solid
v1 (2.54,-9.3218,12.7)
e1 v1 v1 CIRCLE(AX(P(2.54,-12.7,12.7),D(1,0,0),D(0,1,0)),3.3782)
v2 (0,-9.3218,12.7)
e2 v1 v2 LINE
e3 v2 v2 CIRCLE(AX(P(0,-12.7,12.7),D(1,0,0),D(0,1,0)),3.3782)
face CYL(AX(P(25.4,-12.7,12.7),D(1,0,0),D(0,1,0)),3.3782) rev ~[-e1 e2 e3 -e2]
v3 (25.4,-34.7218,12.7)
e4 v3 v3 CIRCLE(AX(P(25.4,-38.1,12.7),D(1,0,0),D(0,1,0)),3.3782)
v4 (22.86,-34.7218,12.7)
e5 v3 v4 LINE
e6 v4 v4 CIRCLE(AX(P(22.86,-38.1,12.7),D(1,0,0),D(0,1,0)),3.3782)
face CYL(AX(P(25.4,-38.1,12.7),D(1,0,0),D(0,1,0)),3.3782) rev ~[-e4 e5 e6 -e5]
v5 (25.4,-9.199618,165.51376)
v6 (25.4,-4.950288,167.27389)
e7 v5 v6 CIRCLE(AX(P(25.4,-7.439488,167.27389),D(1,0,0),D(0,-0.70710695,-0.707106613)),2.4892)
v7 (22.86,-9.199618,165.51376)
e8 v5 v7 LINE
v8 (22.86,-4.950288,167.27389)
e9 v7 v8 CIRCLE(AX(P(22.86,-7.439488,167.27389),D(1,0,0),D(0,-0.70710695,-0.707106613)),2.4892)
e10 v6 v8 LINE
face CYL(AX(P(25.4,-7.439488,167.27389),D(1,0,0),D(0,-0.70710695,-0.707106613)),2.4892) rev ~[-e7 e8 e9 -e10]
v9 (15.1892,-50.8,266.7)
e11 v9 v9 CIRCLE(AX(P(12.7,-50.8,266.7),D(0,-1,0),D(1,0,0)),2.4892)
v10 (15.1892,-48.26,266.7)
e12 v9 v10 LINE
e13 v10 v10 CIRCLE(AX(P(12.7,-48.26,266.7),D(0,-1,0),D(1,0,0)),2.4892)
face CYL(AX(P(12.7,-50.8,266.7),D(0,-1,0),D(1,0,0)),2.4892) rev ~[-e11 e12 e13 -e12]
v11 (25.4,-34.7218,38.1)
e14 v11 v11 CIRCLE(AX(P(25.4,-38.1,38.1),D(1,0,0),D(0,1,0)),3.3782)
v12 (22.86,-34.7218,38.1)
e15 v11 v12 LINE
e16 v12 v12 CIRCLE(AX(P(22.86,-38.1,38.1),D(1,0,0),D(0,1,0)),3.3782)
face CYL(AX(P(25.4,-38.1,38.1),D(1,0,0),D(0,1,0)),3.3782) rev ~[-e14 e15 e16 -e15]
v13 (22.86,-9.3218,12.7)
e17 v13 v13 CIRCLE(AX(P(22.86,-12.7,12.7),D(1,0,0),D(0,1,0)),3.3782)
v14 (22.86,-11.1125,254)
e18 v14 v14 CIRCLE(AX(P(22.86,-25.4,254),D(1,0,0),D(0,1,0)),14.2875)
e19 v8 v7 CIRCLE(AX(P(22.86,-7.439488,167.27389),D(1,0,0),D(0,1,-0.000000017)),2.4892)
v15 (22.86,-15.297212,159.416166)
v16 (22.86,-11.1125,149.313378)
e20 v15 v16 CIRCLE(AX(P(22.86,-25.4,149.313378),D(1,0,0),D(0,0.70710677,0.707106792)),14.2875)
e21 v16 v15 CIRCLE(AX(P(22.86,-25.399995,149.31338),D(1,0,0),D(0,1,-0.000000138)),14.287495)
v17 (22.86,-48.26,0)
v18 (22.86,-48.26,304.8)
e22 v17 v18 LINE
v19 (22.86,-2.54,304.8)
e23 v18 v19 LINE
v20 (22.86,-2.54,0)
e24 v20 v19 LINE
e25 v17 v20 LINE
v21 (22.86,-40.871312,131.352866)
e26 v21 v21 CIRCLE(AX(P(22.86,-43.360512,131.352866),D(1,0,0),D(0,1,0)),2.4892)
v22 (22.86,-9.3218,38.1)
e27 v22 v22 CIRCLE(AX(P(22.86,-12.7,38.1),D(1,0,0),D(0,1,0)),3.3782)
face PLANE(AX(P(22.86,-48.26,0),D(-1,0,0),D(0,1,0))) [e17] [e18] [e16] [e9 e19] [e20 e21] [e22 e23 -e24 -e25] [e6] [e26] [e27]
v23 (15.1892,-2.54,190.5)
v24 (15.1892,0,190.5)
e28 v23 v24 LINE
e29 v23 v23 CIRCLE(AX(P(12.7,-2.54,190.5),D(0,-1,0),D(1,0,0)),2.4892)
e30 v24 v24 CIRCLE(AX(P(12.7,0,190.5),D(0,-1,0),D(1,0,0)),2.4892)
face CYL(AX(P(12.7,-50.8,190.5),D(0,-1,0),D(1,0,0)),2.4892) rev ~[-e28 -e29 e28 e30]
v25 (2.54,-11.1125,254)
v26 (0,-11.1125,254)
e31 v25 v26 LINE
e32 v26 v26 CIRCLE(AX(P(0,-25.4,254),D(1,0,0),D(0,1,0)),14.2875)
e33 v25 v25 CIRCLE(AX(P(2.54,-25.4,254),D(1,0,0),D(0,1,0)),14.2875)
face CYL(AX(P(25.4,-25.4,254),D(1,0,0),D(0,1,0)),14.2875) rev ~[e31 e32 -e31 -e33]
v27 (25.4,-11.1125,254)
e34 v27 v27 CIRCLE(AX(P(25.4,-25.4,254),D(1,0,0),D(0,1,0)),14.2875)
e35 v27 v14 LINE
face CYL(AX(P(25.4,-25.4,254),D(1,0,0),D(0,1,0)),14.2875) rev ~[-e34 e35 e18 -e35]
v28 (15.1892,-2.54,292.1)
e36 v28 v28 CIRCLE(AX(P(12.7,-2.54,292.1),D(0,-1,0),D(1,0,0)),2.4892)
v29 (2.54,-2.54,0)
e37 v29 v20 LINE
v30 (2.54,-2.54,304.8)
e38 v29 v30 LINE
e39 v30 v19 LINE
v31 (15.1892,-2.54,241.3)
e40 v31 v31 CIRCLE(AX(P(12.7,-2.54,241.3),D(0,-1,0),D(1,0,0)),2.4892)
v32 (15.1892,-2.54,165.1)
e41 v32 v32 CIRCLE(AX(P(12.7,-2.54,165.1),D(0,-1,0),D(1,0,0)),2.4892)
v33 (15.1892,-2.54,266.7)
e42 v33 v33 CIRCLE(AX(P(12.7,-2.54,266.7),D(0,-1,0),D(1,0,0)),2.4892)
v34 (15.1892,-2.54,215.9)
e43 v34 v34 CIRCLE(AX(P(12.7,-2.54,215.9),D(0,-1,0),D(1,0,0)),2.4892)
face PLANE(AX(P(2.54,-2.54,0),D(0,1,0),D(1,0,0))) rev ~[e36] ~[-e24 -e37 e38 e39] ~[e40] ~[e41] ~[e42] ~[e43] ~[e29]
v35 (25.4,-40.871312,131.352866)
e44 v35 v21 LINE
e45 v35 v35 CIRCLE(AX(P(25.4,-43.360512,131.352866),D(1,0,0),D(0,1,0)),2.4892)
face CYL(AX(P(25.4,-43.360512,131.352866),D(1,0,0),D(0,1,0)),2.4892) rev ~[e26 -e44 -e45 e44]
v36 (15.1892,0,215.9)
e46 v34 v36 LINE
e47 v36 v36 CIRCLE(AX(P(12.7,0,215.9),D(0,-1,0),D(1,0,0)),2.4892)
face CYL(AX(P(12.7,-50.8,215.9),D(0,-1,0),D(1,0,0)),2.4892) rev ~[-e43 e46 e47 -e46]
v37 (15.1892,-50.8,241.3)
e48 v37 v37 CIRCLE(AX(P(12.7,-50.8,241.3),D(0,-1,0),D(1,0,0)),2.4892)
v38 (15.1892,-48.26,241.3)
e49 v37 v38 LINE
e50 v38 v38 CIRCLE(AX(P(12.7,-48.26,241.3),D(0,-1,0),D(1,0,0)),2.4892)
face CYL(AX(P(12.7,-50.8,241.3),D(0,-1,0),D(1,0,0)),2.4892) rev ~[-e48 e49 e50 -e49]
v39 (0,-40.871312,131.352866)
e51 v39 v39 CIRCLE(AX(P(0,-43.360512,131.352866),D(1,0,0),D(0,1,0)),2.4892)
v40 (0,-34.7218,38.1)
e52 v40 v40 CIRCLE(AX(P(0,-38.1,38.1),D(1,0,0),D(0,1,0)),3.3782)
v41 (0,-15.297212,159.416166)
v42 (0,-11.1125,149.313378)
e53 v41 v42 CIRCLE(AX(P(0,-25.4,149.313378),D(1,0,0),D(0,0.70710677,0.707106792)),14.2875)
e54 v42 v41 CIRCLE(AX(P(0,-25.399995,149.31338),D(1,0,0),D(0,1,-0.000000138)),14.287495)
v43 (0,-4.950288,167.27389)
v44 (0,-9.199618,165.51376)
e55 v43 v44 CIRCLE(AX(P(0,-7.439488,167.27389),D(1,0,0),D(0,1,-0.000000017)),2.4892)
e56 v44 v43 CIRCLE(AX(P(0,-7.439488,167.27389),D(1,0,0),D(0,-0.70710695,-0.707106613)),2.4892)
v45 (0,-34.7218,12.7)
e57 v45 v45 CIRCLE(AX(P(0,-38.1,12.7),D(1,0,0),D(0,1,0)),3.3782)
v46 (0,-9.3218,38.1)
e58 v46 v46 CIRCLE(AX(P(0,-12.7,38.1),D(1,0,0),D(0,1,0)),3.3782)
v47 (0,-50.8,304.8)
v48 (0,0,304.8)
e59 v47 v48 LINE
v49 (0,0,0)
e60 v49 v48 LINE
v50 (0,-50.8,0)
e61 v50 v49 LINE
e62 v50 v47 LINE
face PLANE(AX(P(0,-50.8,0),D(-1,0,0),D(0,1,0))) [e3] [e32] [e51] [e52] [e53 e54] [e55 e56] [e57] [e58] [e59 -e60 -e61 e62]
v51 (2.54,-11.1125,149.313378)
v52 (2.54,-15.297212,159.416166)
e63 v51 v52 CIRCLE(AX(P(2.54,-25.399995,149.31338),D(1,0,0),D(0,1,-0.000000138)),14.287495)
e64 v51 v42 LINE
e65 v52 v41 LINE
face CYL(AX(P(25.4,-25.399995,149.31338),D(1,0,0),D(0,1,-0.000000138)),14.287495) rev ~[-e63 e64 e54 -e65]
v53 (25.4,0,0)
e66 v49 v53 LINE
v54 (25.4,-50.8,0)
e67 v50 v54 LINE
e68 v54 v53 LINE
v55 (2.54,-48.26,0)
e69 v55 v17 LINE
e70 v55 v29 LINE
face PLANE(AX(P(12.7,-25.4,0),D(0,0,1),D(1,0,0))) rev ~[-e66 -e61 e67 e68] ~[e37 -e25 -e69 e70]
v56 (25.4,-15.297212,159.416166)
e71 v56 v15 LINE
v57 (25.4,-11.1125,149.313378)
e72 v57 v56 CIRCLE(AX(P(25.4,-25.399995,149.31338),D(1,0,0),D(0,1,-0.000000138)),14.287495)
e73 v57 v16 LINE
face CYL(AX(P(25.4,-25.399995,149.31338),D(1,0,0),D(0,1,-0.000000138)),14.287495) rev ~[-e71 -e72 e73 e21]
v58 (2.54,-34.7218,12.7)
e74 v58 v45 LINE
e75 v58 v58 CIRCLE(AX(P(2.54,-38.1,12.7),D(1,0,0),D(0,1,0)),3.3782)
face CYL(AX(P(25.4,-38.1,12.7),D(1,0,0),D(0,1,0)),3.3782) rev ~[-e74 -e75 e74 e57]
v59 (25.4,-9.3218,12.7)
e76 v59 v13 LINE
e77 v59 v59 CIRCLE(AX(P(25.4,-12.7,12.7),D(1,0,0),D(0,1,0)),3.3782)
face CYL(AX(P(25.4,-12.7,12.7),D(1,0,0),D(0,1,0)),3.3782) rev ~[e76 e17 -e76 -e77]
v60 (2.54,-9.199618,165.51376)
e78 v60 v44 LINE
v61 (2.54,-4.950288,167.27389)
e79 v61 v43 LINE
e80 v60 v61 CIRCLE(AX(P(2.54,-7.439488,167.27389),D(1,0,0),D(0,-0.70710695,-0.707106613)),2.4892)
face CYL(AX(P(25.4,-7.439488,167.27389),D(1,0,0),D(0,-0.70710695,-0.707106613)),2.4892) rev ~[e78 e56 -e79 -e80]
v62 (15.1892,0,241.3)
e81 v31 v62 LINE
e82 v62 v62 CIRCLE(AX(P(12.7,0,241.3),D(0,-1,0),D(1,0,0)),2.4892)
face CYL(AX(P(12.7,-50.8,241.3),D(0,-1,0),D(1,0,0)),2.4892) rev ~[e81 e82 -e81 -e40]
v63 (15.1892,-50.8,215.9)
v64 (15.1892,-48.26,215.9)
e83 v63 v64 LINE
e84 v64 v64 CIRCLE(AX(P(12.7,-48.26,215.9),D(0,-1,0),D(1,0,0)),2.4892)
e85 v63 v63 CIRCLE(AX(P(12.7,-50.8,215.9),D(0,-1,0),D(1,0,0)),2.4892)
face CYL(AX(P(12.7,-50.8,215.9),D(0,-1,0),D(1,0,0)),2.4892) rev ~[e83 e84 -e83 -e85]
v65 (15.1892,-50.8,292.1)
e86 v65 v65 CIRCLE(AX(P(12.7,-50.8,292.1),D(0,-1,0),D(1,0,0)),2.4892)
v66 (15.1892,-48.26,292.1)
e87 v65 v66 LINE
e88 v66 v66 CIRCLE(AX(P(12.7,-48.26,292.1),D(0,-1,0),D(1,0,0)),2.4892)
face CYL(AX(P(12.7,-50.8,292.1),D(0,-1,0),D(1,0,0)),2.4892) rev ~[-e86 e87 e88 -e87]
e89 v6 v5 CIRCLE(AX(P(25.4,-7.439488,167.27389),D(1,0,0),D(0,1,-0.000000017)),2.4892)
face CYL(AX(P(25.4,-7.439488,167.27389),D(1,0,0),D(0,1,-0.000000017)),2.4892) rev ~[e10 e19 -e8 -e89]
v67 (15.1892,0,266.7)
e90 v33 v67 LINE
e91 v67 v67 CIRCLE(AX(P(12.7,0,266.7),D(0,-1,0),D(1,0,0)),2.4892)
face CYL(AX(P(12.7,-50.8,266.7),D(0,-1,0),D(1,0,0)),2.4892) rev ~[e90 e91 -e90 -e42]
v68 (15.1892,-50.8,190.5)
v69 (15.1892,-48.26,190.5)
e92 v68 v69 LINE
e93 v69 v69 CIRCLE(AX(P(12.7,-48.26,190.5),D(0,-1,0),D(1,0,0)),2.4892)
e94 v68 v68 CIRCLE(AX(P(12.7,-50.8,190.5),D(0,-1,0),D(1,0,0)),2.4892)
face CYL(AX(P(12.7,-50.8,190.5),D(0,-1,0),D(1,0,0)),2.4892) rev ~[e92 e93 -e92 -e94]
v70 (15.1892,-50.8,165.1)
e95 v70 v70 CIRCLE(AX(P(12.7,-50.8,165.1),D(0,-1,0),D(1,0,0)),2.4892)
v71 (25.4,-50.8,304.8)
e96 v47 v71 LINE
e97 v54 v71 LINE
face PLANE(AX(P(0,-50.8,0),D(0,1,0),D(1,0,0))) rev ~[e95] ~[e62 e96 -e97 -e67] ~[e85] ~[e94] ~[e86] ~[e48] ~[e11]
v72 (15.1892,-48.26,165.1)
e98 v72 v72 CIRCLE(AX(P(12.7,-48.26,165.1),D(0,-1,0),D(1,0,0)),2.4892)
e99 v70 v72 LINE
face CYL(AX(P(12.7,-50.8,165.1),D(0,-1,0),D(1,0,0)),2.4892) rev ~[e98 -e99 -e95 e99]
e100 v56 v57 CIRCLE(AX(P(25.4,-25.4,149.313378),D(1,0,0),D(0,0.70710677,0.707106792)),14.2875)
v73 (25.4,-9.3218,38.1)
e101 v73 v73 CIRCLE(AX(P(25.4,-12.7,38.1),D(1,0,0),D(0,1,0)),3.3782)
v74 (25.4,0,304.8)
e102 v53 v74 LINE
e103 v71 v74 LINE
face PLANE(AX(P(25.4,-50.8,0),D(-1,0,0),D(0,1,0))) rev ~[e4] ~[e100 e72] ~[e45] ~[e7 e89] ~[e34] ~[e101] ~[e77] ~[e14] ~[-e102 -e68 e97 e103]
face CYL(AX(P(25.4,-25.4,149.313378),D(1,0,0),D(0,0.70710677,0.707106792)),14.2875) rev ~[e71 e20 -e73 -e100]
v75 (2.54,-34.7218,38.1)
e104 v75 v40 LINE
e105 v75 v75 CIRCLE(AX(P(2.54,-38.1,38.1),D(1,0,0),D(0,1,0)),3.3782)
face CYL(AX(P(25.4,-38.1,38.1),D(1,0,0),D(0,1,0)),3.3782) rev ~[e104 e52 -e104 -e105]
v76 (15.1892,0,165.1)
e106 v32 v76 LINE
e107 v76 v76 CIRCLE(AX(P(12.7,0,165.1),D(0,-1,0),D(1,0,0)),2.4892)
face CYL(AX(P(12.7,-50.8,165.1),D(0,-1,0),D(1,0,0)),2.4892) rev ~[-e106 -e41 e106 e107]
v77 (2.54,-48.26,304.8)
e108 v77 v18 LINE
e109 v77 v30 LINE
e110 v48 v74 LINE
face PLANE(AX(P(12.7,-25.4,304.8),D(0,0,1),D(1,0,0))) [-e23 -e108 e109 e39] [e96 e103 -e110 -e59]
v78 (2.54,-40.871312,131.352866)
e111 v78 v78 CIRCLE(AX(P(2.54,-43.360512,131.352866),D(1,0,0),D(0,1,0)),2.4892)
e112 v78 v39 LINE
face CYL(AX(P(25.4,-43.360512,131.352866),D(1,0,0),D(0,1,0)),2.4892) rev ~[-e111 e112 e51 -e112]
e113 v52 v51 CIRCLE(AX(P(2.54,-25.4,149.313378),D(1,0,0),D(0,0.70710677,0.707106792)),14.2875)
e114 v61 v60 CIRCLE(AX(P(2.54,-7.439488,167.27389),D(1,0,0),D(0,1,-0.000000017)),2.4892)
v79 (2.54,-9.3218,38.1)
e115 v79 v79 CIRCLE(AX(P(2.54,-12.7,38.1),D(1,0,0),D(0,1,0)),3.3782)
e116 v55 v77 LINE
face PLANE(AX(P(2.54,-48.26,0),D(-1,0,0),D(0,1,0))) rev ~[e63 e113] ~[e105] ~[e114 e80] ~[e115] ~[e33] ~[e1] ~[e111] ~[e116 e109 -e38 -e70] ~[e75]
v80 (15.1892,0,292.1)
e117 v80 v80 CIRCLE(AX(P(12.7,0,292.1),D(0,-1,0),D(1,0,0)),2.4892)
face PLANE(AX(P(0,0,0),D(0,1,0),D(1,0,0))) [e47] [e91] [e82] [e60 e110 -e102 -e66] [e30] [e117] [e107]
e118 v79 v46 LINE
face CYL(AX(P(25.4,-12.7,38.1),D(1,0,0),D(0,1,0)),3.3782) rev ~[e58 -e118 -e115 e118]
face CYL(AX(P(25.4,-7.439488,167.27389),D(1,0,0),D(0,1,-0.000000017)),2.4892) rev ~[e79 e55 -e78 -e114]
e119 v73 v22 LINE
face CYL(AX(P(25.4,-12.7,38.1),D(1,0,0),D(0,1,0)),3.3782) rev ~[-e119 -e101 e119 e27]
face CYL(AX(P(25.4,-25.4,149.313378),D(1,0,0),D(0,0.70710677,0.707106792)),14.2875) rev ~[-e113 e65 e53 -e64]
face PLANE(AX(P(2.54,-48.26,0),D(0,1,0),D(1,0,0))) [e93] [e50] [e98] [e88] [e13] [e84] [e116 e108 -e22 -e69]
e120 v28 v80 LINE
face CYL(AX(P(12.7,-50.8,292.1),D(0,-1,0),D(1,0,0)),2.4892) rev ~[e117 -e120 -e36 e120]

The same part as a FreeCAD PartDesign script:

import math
import FreeCAD as App
import Part
import Sketcher

V = App.Vector
Q = App.Units.Quantity


def add_polygon(sketch, points):
    """Adds a closed chain of lines whose ends are joined by coincident constraints."""
    first, n = sketch.GeometryCount, len(points)
    for a, b in zip(points, points[1:] + points[:1]):
        sketch.addGeometry(Part.LineSegment(App.Vector(*a, 0), App.Vector(*b, 0)), False)
    for i in range(n):
        sketch.addConstraint(Sketcher.Constraint("Coincident", first + i, 2, first + (i + 1) % n, 1))

doc = App.newDocument("Part")
body = doc.addObject("PartDesign::Body", "Body")

# Sketch on XY plane
sketch1 = body.newObject("Sketcher::SketchObject", "Sketch")
sketch1.AttachmentSupport = (doc.getObject("XY_Plane"), [""])
sketch1.MapMode = "FlatFace"
add_polygon(sketch1, [(0, 0), (0, -50.8), (25.4, -50.8), (25.4, 0)])  # lines 0-3
add_polygon(sketch1, [(22.86, -48.26), (2.54, -48.26), (2.54, -2.54), (22.86, -2.54)])  # lines 4-7
sketch1.addConstraint([
    Sketcher.Constraint("Vertical", 0),
    Sketcher.Constraint("Horizontal", 1),
    Sketcher.Constraint("Vertical", 2),
    Sketcher.Constraint("Horizontal", 3),
    Sketcher.Constraint("Horizontal", 4),
    Sketcher.Constraint("Vertical", 5),
    Sketcher.Constraint("Horizontal", 6),
    Sketcher.Constraint("Vertical", 7),
    Sketcher.Constraint("Coincident", 3, 2, -1, 1),
    Sketcher.Constraint("DistanceX", 1, 1, 1, 2, Q("1 in")),
    Sketcher.Constraint("DistanceY", 0, 2, 0, 1, Q("2 in")),
    Sketcher.Constraint("DistanceX", 4, 2, 4, 1, Q("0.8 in")),
    Sketcher.Constraint("DistanceY", 5, 1, 5, 2, Q("1.8 in")),
    Sketcher.Constraint("DistanceX", -1, 1, 4, 2, Q("0.1 in")),
    Sketcher.Constraint("DistanceY", 4, 2, -1, 1, Q("1.9 in")),
])
pad1 = body.newObject("PartDesign::Pad", "Pad")
pad1.Profile = sketch1
pad1.Length = Q("12 in")

# Sketch on YZ plane
sketch2 = body.newObject("Sketcher::SketchObject", "Sketch001")
sketch2.AttachmentSupport = (doc.getObject("YZ_Plane"), [""])
sketch2.MapMode = "FlatFace"
sketch2.AttachmentOffset = App.Placement(V(0, 0, 1 * 25.4), App.Rotation())
sketch2.addGeometry([
    Part.Circle(V(-25.4, 254, 0), V(0, 0, 1), 14.2875),  # 0
    Part.Circle(V(-38.1, 38.1, 0), V(0, 0, 1), 3.3782),  # 1
    Part.Circle(V(-38.1, 12.7, 0), V(0, 0, 1), 3.3782),  # 2
    Part.Circle(V(-12.7, 38.1, 0), V(0, 0, 1), 3.3782),  # 3
    Part.Circle(V(-12.7, 12.7, 0), V(0, 0, 1), 3.3782),  # 4
    Part.ArcOfCircle(Part.Circle(V(-7.439488, 167.27389, 0), V(0, 0, 1), 2.4892), math.radians(-0.000001), math.radians(224.999998)),  # 5
    Part.ArcOfCircle(Part.Circle(V(-7.439488, 167.27389, 0), V(0, 0, 1), 2.4892), math.radians(-135.000014), math.radians(0.000011)),  # 6
    Part.Circle(V(-43.360512, 131.352866, 0), V(0, 0, 1), 2.4892),  # 7
    Part.ArcOfCircle(Part.Circle(V(-25.399995, 149.31338, 0), V(0, 0, 1), 14.287495), math.radians(-0.000008), math.radians(45.00001)),  # 8
    Part.ArcOfCircle(Part.Circle(V(-25.4, 149.313378, 0), V(0, 0, 1), 14.2875), math.radians(45.000001), math.radians(360.000001)),  # 9
], False)
sketch2.addConstraint([
    Sketcher.Constraint("Tangent", 5, 1, 6, 2),
    Sketcher.Constraint("Coincident", 6, 1, 5, 2),
    Sketcher.Constraint("Tangent", 8, 1, 9, 2),
    Sketcher.Constraint("Coincident", 9, 1, 8, 2),
    Sketcher.Constraint("Equal", 1, 2),
    Sketcher.Constraint("Equal", 2, 3),
    Sketcher.Constraint("Equal", 3, 4),
    Sketcher.Constraint("Equal", 6, 7),
    Sketcher.Constraint("Equal", 0, 9),
    Sketcher.Constraint("Horizontal", 1, 3, 3, 3),
    Sketcher.Constraint("Horizontal", 2, 3, 4, 3),
    Sketcher.Constraint("Horizontal", 6, 3, 5, 1),
    Sketcher.Constraint("Horizontal", 9, 3, 8, 1),
    Sketcher.Constraint("Vertical", 1, 3, 2, 3),
    Sketcher.Constraint("Vertical", 3, 3, 4, 3),
    Sketcher.Constraint("Vertical", 0, 3, 9, 3),
    Sketcher.Constraint("Diameter", 0, Q("1.125 in")),
    Sketcher.Constraint("Diameter", 1, Q("0.266 in")),
    Sketcher.Constraint("Diameter", 7, Q("0.196 in")),
    Sketcher.Constraint("DistanceX", 0, 3, -1, 1, Q("1 in")),
    Sketcher.Constraint("DistanceY", -1, 1, 0, 3, Q("10 in")),
    Sketcher.Constraint("DistanceY", 2, 3, 1, 3, Q("1 in")),
    Sketcher.Constraint("DistanceX", 1, 3, 3, 3, Q("1 in")),
    Sketcher.Constraint("DistanceX", 1, 3, -1, 1, Q("1.5 in")),
    Sketcher.Constraint("DistanceY", -1, 1, 1, 3, Q("1.5 in")),
    Sketcher.Constraint("DistanceY", -1, 1, 5, 3, 167.27389),
    Sketcher.Constraint("DistanceY", -1, 1, 8, 3, 149.31338),
    Sketcher.Constraint("DistanceX", 5, 1, -1, 1, 4.950288),
    Sketcher.Constraint("DistanceX", 6, 1, -1, 1, 9.199618),
    Sketcher.Constraint("DistanceX", 7, 3, 1, 3, 5.260512),
    Sketcher.Constraint("DistanceY", 7, 3, 9, 3, 17.960512),
    Sketcher.Constraint("DistanceX", 9, 1, -1, 1, 15.297212),
])
pocket1 = body.newObject("PartDesign::Pocket", "Pocket")
pocket1.Profile = sketch2
pocket1.Length = Q("1 in")

# Sketch on XZ plane
sketch3 = body.newObject("Sketcher::SketchObject", "Sketch002")
sketch3.AttachmentSupport = (doc.getObject("XZ_Plane"), [""])
sketch3.MapMode = "FlatFace"
sketch3.AttachmentOffset = App.Placement(V(0, 0, 2 * 25.4), App.Rotation())
sketch3.addGeometry([
    Part.Circle(V(12.7, 292.1, 0), V(0, 0, 1), 2.4892),  # 0
    Part.Circle(V(12.7, 266.7, 0), V(0, 0, 1), 2.4892),  # 1
    Part.Circle(V(12.7, 241.3, 0), V(0, 0, 1), 2.4892),  # 2
    Part.Circle(V(12.7, 215.9, 0), V(0, 0, 1), 2.4892),  # 3
    Part.Circle(V(12.7, 190.5, 0), V(0, 0, 1), 2.4892),  # 4
    Part.Circle(V(12.7, 165.1, 0), V(0, 0, 1), 2.4892),  # 5
], False)
sketch3.addConstraint([
    Sketcher.Constraint("Equal", 0, 1),
    Sketcher.Constraint("Equal", 1, 2),
    Sketcher.Constraint("Equal", 2, 3),
    Sketcher.Constraint("Equal", 3, 4),
    Sketcher.Constraint("Equal", 4, 5),
    Sketcher.Constraint("Vertical", 0, 3, 1, 3),
    Sketcher.Constraint("Vertical", 1, 3, 2, 3),
    Sketcher.Constraint("Vertical", 2, 3, 3, 3),
    Sketcher.Constraint("Vertical", 3, 3, 4, 3),
    Sketcher.Constraint("Vertical", 4, 3, 5, 3),
    Sketcher.Constraint("Diameter", 0, Q("0.196 in")),
    Sketcher.Constraint("DistanceY", 1, 3, 0, 3, Q("1 in")),
    Sketcher.Constraint("DistanceY", 2, 3, 1, 3, Q("1 in")),
    Sketcher.Constraint("DistanceY", 3, 3, 2, 3, Q("1 in")),
    Sketcher.Constraint("DistanceY", 4, 3, 3, 3, Q("1 in")),
    Sketcher.Constraint("DistanceY", 5, 3, 4, 3, Q("1 in")),
    Sketcher.Constraint("DistanceX", -1, 1, 0, 3, Q("0.5 in")),
    Sketcher.Constraint("DistanceY", -1, 1, 0, 3, Q("11.5 in")),
])
pocket2 = body.newObject("PartDesign::Pocket", "Pocket001")
pocket2.Profile = sketch3
pocket2.Type = "ThroughAll"

doc.recompute()
